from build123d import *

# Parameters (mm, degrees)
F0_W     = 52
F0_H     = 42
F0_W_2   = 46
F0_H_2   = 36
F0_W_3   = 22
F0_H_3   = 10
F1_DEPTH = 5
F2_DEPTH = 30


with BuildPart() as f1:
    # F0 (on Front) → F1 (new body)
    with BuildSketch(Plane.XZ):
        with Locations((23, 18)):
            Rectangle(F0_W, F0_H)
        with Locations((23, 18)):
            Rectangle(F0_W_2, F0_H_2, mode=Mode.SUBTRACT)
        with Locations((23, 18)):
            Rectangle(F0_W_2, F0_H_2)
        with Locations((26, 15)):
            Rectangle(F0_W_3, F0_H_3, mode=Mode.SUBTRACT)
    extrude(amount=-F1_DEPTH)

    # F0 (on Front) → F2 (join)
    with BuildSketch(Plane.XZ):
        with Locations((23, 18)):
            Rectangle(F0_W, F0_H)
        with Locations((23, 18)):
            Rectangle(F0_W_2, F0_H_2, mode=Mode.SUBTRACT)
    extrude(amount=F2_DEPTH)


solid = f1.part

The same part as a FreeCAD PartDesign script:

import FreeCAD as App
import Part
import Sketcher

V = App.Vector


def add_polygon(sketch, points):
    """Adds a closed chain of lines whose ends are joined by coincident constraints."""
    first, n = sketch.GeometryCount, len(points)
    for a, b in zip(points, points[1:] + points[:1]):
        sketch.addGeometry(Part.LineSegment(App.Vector(*a, 0), App.Vector(*b, 0)), False)
    for i in range(n):
        sketch.addConstraint(Sketcher.Constraint("Coincident", first + i, 2, first + (i + 1) % n, 1))

doc = App.newDocument("Part")
body = doc.addObject("PartDesign::Body", "Body")

sketch1 = body.newObject("Sketcher::SketchObject", "Sketch")
sketch1.AttachmentSupport = (doc.getObject("XZ_Plane"), [""])
sketch1.MapMode = "FlatFace"
add_polygon(sketch1, [(-3, 39), (-3, -3), (49, -3), (49, 39)])
add_polygon(sketch1, [(37, 10), (15, 10), (15, 20), (37, 20)])
sketch1.addConstraint([
    Sketcher.Constraint("Vertical", 0),
    Sketcher.Constraint("Horizontal", 1),
    Sketcher.Constraint("Vertical", 2),
    Sketcher.Constraint("Horizontal", 3),
    Sketcher.Constraint("Horizontal", 4),
    Sketcher.Constraint("Vertical", 5),
    Sketcher.Constraint("Horizontal", 6),
    Sketcher.Constraint("Vertical", 7),
    Sketcher.Constraint("DistanceX", 1, 1, 1, 2, 52.0),
    Sketcher.Constraint("DistanceX", 4, 2, 4, 1, 22.0),
    Sketcher.Constraint("DistanceY", 0, 2, 0, 1, 42.0),
    Sketcher.Constraint("DistanceY", 5, 1, 5, 2, 10.0),
    Sketcher.Constraint("DistanceX", 0, 2, -1, 1, 3.0),
    Sketcher.Constraint("DistanceY", 0, 2, -1, 1, 3.0),
    Sketcher.Constraint("DistanceX", -1, 1, 4, 2, 15.0),
    Sketcher.Constraint("DistanceY", -1, 1, 4, 2, 10.0),
])
pad1 = body.newObject("PartDesign::Pad", "Pad")
pad1.Profile = sketch1
pad1.Length = 5
pad1.Reversed = True

sketch2 = body.newObject("Sketcher::SketchObject", "Sketch001")
sketch2.AttachmentSupport = (doc.getObject("XZ_Plane"), [""])
sketch2.MapMode = "FlatFace"
add_polygon(sketch2, [(-3, 39), (-3, -3), (49, -3), (49, 39)])
add_polygon(sketch2, [(46, 0), (0, 0), (0, 36), (46, 36)])
sketch2.addConstraint([
    Sketcher.Constraint("Vertical", 0),
    Sketcher.Constraint("Horizontal", 1),
    Sketcher.Constraint("Vertical", 2),
    Sketcher.Constraint("Horizontal", 3),
    Sketcher.Constraint("Horizontal", 4),
    Sketcher.Constraint("Vertical", 5),
    Sketcher.Constraint("Horizontal", 6),
    Sketcher.Constraint("Vertical", 7),
    Sketcher.Constraint("Coincident", 4, 2, -1, 1),
    Sketcher.Constraint("DistanceX", 1, 1, 1, 2, 52.0),
    Sketcher.Constraint("DistanceX", 4, 2, 4, 1, 46.0),
    Sketcher.Constraint("DistanceY", 0, 2, 0, 1, 42.0),
    Sketcher.Constraint("DistanceY", 5, 1, 5, 2, 36.0),
    Sketcher.Constraint("DistanceX", 0, 2, -1, 1, 3.0),
    Sketcher.Constraint("DistanceY", 0, 2, -1, 1, 3.0),
])
pad2 = body.newObject("PartDesign::Pad", "Pad001")
pad2.Profile = sketch2
pad2.Length = 30

doc.recompute()
